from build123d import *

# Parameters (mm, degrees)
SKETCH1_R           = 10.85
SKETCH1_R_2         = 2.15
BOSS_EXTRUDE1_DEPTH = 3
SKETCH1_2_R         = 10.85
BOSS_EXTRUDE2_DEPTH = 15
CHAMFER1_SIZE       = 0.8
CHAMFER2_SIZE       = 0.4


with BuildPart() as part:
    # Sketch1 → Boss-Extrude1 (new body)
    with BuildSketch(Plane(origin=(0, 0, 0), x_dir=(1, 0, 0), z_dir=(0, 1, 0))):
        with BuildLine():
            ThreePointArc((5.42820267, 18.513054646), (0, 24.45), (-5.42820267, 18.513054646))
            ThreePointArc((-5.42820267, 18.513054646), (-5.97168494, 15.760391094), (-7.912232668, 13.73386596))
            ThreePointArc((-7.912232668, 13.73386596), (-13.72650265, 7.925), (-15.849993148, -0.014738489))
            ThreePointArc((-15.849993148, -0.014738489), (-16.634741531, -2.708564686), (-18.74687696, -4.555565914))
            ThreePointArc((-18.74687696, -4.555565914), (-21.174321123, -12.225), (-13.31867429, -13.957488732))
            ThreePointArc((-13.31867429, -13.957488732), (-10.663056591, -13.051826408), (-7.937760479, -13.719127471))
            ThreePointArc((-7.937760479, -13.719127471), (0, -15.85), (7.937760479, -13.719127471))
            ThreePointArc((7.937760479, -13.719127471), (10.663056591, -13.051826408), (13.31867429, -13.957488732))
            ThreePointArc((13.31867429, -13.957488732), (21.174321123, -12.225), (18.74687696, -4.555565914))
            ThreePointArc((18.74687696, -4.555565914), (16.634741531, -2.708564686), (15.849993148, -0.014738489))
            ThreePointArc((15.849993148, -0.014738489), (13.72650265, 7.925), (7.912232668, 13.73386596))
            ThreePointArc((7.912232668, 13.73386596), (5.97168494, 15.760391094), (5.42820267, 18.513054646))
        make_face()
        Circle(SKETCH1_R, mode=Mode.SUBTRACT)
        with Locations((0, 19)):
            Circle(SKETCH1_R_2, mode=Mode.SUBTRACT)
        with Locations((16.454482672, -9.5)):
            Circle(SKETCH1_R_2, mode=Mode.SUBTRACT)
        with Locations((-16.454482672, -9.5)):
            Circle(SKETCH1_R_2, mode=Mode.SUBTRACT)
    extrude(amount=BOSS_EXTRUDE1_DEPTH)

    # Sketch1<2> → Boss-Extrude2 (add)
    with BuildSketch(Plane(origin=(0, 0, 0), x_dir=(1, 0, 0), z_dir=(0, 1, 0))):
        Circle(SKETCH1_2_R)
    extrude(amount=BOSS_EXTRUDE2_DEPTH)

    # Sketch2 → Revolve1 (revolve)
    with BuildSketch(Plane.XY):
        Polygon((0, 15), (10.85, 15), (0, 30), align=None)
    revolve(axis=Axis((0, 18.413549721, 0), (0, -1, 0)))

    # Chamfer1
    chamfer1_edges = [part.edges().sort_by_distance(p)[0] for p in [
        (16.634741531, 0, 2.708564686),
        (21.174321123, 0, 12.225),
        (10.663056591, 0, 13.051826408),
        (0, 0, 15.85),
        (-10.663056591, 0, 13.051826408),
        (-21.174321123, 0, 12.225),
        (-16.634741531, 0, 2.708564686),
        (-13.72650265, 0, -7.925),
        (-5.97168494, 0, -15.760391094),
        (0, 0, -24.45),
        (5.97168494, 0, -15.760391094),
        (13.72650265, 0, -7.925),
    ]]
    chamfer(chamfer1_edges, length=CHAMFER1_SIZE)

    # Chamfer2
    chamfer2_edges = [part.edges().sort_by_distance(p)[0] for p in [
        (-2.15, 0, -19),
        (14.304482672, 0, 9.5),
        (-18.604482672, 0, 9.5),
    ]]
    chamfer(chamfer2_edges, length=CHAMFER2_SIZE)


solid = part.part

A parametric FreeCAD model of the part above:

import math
import FreeCAD as App
import Part
import Sketcher
from FreeCAD import Vector
Q = App.Units.Quantity


def edges_at(feature, points):
    """Names of the edges that pass closest to the given points."""
    edges = feature.Shape.Edges
    near = lambda p: min(range(len(edges)), key=lambda i: edges[i].distToShape(Part.Vertex(*p))[0])
    return sorted({f"Edge{near(p) + 1}" for p in points})


def add_polygon(sketch, points):
    """Adds a closed chain of lines whose ends are joined by coincident constraints."""
    first, n = sketch.GeometryCount, len(points)
    for a, b in zip(points, points[1:] + points[:1]):
        sketch.addGeometry(Part.LineSegment(App.Vector(*a, 0), App.Vector(*b, 0)), False)
    for i in range(n):
        sketch.addConstraint(Sketcher.Constraint("Coincident", first + i, 2, first + (i + 1) % n, 1))

doc = App.newDocument("Part")
body = doc.addObject("PartDesign::Body", "Body")

# Sketch on XZ plane
sketch1 = body.newObject("Sketcher::SketchObject", "Sketch")
sketch1.AttachmentSupport = (doc.getObject("XZ_Plane"), [""])
sketch1.MapMode = "FlatFace"
sketch1.addGeometry([
    Part.ArcOfCircle(Part.Circle(Vector(0, -19, 0), Vector(0, 0, 1), 5.5), math.radians(175), math.radians(365)),  # 0
    Part.ArcOfCircle(Part.Circle(Vector(-10.4, -18.1, 0), Vector(0, 0, 1), 5), math.radians(-5), math.radians(60)),  # 1
    Part.ArcOfCircle(Part.Circle(Vector(0, 0, 0), Vector(0, 0, 1), 15.9), math.radians(180), math.radians(240)),  # 2
    Part.ArcOfCircle(Part.Circle(Vector(-20.8, 0, 0), Vector(0, 0, 1), 5), math.radians(0), math.radians(65)),  # 3
    Part.ArcOfCircle(Part.Circle(Vector(-16.5, 9.5, 0), Vector(0, 0, 1), 5.5), math.radians(55), math.radians(245)),  # 4
    Part.ArcOfCircle(Part.Circle(Vector(-10.4, 18, 0), Vector(0, 0, 1), 5), math.radians(-125), math.radians(-60)),  # 5
    Part.ArcOfCircle(Part.Circle(Vector(0, 0, 0), Vector(0, 0, 1), 15.8), math.radians(60), math.radians(120)),  # 6
    Part.ArcOfCircle(Part.Circle(Vector(10.4, 18, 0), Vector(0, 0, 1), 5), math.radians(-120), math.radians(-55)),  # 7
    Part.ArcOfCircle(Part.Circle(Vector(16.5, 9.5, 0), Vector(0, 0, 1), 5.5), math.radians(-65), math.radians(125)),  # 8
    Part.ArcOfCircle(Part.Circle(Vector(20.8, 0, 0), Vector(0, 0, 1), 5), math.radians(115), math.radians(180)),  # 9
    Part.ArcOfCircle(Part.Circle(Vector(0, 0, 0), Vector(0, 0, 1), 15.9), math.radians(-60), math.radians(0)),  # 10
    Part.ArcOfCircle(Part.Circle(Vector(10.4, -18.1, 0), Vector(0, 0, 1), 5), math.radians(120), math.radians(185)),  # 11
    Part.Circle(Vector(-16.5, 9.5, 0), Vector(0, 0, 1), 2.1),  # 12
    Part.Circle(Vector(16.5, 9.5, 0), Vector(0, 0, 1), 2.1),  # 13
    Part.Circle(Vector(0, 0, 0), Vector(0, 0, 1), 10.8),  # 14
    Part.Circle(Vector(0, -19, 0), Vector(0, 0, 1), 2.1),  # 15
], False)
sketch1.addConstraint([
    Sketcher.Constraint("Tangent", 0, 1, 1, 1),
    Sketcher.Constraint("Tangent", 1, 2, 2, 2),
    Sketcher.Constraint("Tangent", 2, 1, 3, 1),
    Sketcher.Constraint("Tangent", 3, 2, 4, 2),
    Sketcher.Constraint("Tangent", 4, 1, 5, 1),
    Sketcher.Constraint("Tangent", 5, 2, 6, 2),
    Sketcher.Constraint("Tangent", 6, 1, 7, 1),
    Sketcher.Constraint("Tangent", 7, 2, 8, 2),
    Sketcher.Constraint("Tangent", 8, 1, 9, 1),
    Sketcher.Constraint("Tangent", 9, 2, 10, 2),
    Sketcher.Constraint("Tangent", 10, 1, 11, 1),
    Sketcher.Constraint("Tangent", 11, 2, 0, 2),
    Sketcher.Constraint("Coincident", 2, 3, -1, 1),
    Sketcher.Constraint("Coincident", 6, 3, -1, 1),
    Sketcher.Constraint("Coincident", 10, 3, -1, 1),
    Sketcher.Constraint("Coincident", 14, 3, -1, 1),
    Sketcher.Constraint("Coincident", 12, 3, 4, 3),
    Sketcher.Constraint("Coincident", 13, 3, 8, 3),
    Sketcher.Constraint("Coincident", 15, 3, 0, 3),
    Sketcher.Constraint("Equal", 1, 3),
    Sketcher.Constraint("Equal", 0, 4),
    Sketcher.Constraint("Equal", 3, 5),
    Sketcher.Constraint("Equal", 2, 6),
    Sketcher.Constraint("Equal", 5, 7),
    Sketcher.Constraint("Equal", 4, 8),
    Sketcher.Constraint("Equal", 7, 9),
    Sketcher.Constraint("Equal", 6, 10),
    Sketcher.Constraint("Equal", 9, 11),
    Sketcher.Constraint("Equal", 12, 13),
    Sketcher.Constraint("Equal", 13, 15),
    Sketcher.Constraint("Symmetric", 4, 3, 8, 3, -2),
    Sketcher.Constraint("PointOnObject", 0, 3, -2),
    Sketcher.Constraint("Radius", 1, Q("5 mm")),
    Sketcher.Constraint("Diameter", 12, Q("4.3 mm")),
    Sketcher.Constraint("Diameter", 14, Q("21.7 mm")),
    Sketcher.Constraint("Radius", 0, Q("5.45 mm")),
    Sketcher.Constraint("Radius", 2, Q("15.85 mm")),
    Sketcher.Constraint("DistanceY", 0, 3, -1, 1, Q("19 mm")),
    Sketcher.Constraint("DistanceY", -1, 1, 4, 3, Q("9.5 mm")),
    Sketcher.Constraint("DistanceY", 5, 2, 5, 3, Q("4.3278 mm")),
])
pad1 = body.newObject("PartDesign::Pad", "Pad")
pad1.Profile = sketch1
pad1.Length = 3
pad1.Reversed = True

# Sketch on XZ plane
sketch2 = body.newObject("Sketcher::SketchObject", "Sketch001")
sketch2.AttachmentSupport = (doc.getObject("XZ_Plane"), [""])
sketch2.MapMode = "FlatFace"
sketch2.addGeometry(Part.Circle(Vector(0, 0, 0), Vector(0, 0, 1), 11), False)
sketch2.addConstraint([
    Sketcher.Constraint("Coincident", 0, 3, -1, 1),
    Sketcher.Constraint("Diameter", 0, Q("21.7 mm")),
])
pad2 = body.newObject("PartDesign::Pad", "Pad001")
pad2.Profile = sketch2
pad2.Length = 15
pad2.Reversed = True

# Sketch on XY plane
sketch3 = body.newObject("Sketcher::SketchObject", "Sketch002")
sketch3.AttachmentSupport = (doc.getObject("XY_Plane"), [""])
sketch3.MapMode = "FlatFace"
add_polygon(sketch3, [(0, 15), (11, 15), (0, 30)])  # lines 0-2
sketch3.addConstraint([
    Sketcher.Constraint("Horizontal", 0),
    Sketcher.Constraint("Vertical", 2),
    Sketcher.Constraint("PointOnObject", 1, 2, -2),
    Sketcher.Constraint("DistanceY", 2, 2, 2, 1, Q("15 mm")),
    Sketcher.Constraint("DistanceY", -1, 1, 0, 2, Q("15 mm")),
    Sketcher.Constraint("DistanceX", 0, 1, 0, 2, Q("10.85 mm")),
])
revolution = body.newObject("PartDesign::Revolution", "Revolution")
revolution.Profile = sketch3
revolution.ReferenceAxis = (sketch3, ["V_Axis"])
revolution.Angle = 360
doc.recompute()

chamfer = body.newObject("PartDesign::Chamfer", "Chamfer")
chamfer.Base = (revolution, edges_at(revolution, [
    (16.635, 0, 2.709),
    (21.174, 0, 12.225),
    (10.663, 0, 13.052),
    (0, 0, 15.85),
    (-10.663, 0, 13.052),
    (-21.174, 0, 12.225),
    (-16.635, 0, 2.709),
    (-13.727, 0, -7.925),
    (-5.972, 0, -15.76),
    (0, 0, -24.45),
    (5.972, 0, -15.76),
    (13.727, 0, -7.925),
]))
chamfer.Size = 0.8
doc.recompute()

chamfer2 = body.newObject("PartDesign::Chamfer", "Chamfer001")
chamfer2.Base = (chamfer, edges_at(chamfer, [(-2.15, 0, -19), (14.304, 0, 9.5), (-18.604, 0, 9.5)]))
chamfer2.Size = 0.4

doc.recompute()
